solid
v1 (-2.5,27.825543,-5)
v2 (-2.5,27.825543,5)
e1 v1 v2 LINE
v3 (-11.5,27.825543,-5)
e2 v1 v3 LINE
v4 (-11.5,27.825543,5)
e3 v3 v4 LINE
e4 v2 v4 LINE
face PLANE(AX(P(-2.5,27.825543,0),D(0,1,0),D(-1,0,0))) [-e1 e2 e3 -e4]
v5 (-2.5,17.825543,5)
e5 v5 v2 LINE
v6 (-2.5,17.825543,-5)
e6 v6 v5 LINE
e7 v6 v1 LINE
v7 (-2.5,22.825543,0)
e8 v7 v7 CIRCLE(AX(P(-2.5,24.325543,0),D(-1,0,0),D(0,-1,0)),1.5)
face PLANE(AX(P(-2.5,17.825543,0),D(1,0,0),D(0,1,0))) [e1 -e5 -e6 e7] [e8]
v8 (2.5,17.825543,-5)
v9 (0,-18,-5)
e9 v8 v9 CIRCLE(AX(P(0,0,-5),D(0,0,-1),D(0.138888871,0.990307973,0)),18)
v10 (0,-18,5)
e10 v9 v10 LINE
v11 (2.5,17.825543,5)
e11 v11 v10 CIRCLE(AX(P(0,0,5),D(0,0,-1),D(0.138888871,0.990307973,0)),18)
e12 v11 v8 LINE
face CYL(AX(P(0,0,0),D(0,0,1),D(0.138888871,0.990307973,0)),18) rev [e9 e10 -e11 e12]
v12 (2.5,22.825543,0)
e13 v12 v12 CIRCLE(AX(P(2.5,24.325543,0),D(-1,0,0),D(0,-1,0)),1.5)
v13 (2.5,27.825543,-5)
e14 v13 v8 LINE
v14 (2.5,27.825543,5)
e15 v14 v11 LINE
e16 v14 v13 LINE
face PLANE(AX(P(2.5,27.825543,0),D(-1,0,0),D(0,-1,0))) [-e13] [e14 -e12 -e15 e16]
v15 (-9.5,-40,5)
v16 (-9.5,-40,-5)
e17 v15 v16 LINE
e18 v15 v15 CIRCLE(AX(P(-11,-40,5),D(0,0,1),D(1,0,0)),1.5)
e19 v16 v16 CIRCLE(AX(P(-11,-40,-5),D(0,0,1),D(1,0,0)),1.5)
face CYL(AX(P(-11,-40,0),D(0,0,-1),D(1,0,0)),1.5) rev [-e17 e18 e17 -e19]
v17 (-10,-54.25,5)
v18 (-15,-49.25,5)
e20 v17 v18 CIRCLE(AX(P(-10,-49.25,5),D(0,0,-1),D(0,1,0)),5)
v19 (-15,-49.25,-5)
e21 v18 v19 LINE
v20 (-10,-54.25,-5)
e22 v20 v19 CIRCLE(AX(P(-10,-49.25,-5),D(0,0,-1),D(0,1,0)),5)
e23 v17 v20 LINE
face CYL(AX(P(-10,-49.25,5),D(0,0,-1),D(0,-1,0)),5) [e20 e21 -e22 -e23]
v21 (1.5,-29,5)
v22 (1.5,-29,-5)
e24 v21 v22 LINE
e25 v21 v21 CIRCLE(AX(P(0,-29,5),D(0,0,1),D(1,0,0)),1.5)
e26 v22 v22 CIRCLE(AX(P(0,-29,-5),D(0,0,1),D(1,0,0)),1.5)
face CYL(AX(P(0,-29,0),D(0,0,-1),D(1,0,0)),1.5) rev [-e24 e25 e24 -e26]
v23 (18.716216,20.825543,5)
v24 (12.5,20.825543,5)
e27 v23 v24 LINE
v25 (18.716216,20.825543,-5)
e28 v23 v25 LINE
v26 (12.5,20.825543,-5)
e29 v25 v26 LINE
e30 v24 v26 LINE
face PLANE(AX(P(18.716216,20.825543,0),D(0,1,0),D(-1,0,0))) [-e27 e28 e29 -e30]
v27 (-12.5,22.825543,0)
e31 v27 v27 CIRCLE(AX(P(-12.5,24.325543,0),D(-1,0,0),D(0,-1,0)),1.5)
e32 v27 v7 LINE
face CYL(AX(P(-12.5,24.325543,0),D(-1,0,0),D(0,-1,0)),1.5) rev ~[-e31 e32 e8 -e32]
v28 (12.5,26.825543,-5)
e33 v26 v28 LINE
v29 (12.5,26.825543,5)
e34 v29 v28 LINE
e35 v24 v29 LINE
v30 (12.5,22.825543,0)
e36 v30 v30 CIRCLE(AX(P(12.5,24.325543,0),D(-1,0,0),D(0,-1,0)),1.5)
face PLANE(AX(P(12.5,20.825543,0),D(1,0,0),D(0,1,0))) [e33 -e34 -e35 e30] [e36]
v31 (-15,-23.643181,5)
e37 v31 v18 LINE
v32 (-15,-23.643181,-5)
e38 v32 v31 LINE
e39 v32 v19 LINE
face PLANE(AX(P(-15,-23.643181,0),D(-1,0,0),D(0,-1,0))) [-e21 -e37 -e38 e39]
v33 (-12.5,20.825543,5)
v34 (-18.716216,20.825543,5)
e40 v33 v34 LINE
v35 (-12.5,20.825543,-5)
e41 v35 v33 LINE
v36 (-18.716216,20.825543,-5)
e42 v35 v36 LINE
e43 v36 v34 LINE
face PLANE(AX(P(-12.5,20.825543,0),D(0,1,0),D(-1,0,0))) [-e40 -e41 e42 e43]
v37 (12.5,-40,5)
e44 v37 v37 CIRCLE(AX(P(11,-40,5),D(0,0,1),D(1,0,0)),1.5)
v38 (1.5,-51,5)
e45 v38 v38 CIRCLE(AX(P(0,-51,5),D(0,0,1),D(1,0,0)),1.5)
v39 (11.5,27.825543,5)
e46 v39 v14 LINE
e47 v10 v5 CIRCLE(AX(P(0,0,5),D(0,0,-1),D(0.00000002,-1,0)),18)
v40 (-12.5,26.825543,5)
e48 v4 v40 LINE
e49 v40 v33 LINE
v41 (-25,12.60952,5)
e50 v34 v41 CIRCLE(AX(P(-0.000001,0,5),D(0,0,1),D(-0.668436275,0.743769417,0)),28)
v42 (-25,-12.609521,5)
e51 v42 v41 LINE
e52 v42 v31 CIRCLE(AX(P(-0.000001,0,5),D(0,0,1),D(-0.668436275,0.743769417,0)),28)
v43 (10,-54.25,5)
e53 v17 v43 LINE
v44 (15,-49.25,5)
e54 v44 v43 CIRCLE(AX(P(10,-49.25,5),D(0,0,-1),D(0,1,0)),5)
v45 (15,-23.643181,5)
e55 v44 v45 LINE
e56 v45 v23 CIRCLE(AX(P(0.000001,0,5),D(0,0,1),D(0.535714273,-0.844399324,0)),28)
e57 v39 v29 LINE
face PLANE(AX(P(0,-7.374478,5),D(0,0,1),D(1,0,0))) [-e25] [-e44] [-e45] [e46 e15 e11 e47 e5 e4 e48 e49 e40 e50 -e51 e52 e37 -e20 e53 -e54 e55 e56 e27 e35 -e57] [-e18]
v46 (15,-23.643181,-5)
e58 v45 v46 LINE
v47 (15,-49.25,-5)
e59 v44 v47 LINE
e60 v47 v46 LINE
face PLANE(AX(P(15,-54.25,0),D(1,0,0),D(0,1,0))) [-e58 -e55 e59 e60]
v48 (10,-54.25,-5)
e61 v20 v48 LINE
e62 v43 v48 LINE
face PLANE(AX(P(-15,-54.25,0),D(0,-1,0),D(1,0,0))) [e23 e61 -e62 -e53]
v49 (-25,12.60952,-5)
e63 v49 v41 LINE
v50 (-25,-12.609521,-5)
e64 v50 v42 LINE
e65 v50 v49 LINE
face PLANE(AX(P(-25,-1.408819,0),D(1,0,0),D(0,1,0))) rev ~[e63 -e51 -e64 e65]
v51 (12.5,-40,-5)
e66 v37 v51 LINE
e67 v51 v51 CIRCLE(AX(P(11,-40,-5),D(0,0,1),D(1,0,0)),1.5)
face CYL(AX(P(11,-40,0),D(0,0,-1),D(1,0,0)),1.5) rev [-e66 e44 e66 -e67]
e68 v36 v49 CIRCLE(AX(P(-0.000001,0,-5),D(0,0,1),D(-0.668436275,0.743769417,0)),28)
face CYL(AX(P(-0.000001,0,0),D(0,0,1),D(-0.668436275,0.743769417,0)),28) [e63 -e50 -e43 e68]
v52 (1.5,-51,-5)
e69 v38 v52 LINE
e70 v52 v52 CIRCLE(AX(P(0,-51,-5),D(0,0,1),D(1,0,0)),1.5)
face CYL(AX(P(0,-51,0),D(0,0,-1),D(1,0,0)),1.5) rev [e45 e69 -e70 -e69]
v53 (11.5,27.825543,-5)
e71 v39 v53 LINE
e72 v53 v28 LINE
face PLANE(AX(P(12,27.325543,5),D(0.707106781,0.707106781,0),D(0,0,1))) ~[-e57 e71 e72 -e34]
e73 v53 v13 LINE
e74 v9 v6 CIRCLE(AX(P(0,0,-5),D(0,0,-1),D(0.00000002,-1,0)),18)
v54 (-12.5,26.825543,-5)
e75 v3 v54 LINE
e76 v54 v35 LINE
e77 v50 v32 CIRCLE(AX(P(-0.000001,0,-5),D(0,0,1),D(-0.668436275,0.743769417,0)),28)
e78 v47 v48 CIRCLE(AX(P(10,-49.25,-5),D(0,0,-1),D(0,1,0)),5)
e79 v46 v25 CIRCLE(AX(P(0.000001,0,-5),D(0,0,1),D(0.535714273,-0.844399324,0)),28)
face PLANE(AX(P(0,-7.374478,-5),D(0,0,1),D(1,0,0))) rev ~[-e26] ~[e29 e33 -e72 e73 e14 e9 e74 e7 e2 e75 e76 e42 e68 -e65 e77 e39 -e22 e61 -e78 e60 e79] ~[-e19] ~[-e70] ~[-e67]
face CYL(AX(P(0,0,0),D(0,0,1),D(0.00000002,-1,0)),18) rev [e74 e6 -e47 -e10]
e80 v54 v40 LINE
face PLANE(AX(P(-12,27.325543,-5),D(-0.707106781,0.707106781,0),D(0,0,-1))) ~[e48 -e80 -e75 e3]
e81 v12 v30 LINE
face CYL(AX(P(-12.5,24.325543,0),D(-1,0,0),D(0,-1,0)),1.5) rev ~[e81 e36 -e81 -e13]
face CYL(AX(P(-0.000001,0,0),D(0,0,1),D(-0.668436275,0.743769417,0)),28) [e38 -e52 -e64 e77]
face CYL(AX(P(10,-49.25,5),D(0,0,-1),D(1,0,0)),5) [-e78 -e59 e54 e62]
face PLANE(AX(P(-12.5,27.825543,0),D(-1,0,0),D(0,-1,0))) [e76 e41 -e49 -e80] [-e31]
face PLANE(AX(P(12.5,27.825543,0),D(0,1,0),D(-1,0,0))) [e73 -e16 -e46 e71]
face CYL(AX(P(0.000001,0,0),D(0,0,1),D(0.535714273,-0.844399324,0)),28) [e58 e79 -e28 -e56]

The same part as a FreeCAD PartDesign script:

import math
import FreeCAD as App
import Part
import Sketcher

V = App.Vector


def edges_at(feature, points):
    """Names of the edges that pass closest to the given points."""
    edges = feature.Shape.Edges
    near = lambda p: min(range(len(edges)), key=lambda i: edges[i].distToShape(Part.Vertex(*p))[0])
    return sorted({f"Edge{near(p) + 1}" for p in points})


def add_polygon(sketch, points):
    """Adds a closed chain of lines whose ends are joined by coincident constraints."""
    first, n = sketch.GeometryCount, len(points)
    for a, b in zip(points, points[1:] + points[:1]):
        sketch.addGeometry(Part.LineSegment(App.Vector(*a, 0), App.Vector(*b, 0)), False)
    for i in range(n):
        sketch.addConstraint(Sketcher.Constraint("Coincident", first + i, 2, first + (i + 1) % n, 1))

doc = App.newDocument("Part")
body = doc.addObject("PartDesign::Body", "Body")

sketch1 = body.newObject("Sketcher::SketchObject", "Sketch")
sketch1.AttachmentSupport = (doc.getObject("XY_Plane"), [""])
sketch1.MapMode = "FlatFace"
sketch1.addGeometry([
    Part.ArcOfCircle(Part.Circle(V(0, 0, 0), V(0, 0, 1), 18), math.radians(-90), math.radians(82)),
    Part.ArcOfCircle(Part.Circle(V(0, 0, 0), V(0, 0, 1), 18), math.radians(98), math.radians(270)),
    Part.LineSegment(V(-2.5, 17.8, 0), V(-2.5, 27.8, 0)),
    Part.LineSegment(V(-2.5, 27.8, 0), V(-12.5, 27.8, 0)),
    Part.LineSegment(V(-12.5, 27.8, 0), V(-12.5, 20.8, 0)),
    Part.LineSegment(V(-12.5, 20.8, 0), V(-18.7, 20.8, 0)),
    Part.ArcOfCircle(Part.Circle(V(0, 0, 0), V(0, 0, 1), 28), math.radians(132), math.radians(238)),
    Part.LineSegment(V(-15, -23.6, 0), V(-15, -54.2, 0)),
    Part.LineSegment(V(-15, -54.2, 0), V(15, -54.2, 0)),
    Part.LineSegment(V(15, -54.2, 0), V(15, -23.6, 0)),
    Part.ArcOfCircle(Part.Circle(V(0, 0, 0), V(0, 0, 1), 28), math.radians(-58), math.radians(48)),
    Part.LineSegment(V(18.7, 20.8, 0), V(12.5, 20.8, 0)),
    Part.LineSegment(V(12.5, 20.8, 0), V(12.5, 27.8, 0)),
    Part.LineSegment(V(12.5, 27.8, 0), V(2.5, 27.8, 0)),
    Part.LineSegment(V(2.5, 27.8, 0), V(2.5, 17.8, 0)),
    Part.Circle(V(0, -51, 0), V(0, 0, 1), 1.5),
    Part.Circle(V(-11, -40, 0), V(0, 0, 1), 1.5),
    Part.Circle(V(11, -40, 0), V(0, 0, 1), 1.5),
    Part.Circle(V(0, -29, 0), V(0, 0, 1), 1.5),
], False)
sketch1.addConstraint([
    Sketcher.Constraint("Tangent", 0, 1, 1, 2),
    Sketcher.Constraint("Coincident", 1, 1, 2, 1),
    Sketcher.Constraint("Coincident", 2, 2, 3, 1),
    Sketcher.Constraint("Coincident", 3, 2, 4, 1),
    Sketcher.Constraint("Coincident", 4, 2, 5, 1),
    Sketcher.Constraint("Coincident", 5, 2, 6, 1),
    Sketcher.Constraint("Coincident", 6, 2, 7, 1),
    Sketcher.Constraint("Coincident", 7, 2, 8, 1),
    Sketcher.Constraint("Coincident", 8, 2, 9, 1),
    Sketcher.Constraint("Coincident", 9, 2, 10, 1),
    Sketcher.Constraint("Coincident", 10, 2, 11, 1),
    Sketcher.Constraint("Coincident", 11, 2, 12, 1),
    Sketcher.Constraint("Coincident", 12, 2, 13, 1),
    Sketcher.Constraint("Coincident", 13, 2, 14, 1),
    Sketcher.Constraint("Coincident", 14, 2, 0, 2),
    Sketcher.Constraint("Vertical", 2),
    Sketcher.Constraint("Horizontal", 3),
    Sketcher.Constraint("Vertical", 4),
    Sketcher.Constraint("Horizontal", 5),
    Sketcher.Constraint("Vertical", 7),
    Sketcher.Constraint("Horizontal", 8),
    Sketcher.Constraint("Vertical", 9),
    Sketcher.Constraint("Horizontal", 11),
    Sketcher.Constraint("Vertical", 12),
    Sketcher.Constraint("Horizontal", 13),
    Sketcher.Constraint("Vertical", 14),
    Sketcher.Constraint("Coincident", 0, 3, -1, 1),
    Sketcher.Constraint("Coincident", 6, 3, -1, 1),
    Sketcher.Constraint("Coincident", 10, 3, -1, 1),
    Sketcher.Constraint("Equal", 0, 1),
    Sketcher.Constraint("Equal", 6, 10),
    Sketcher.Constraint("Equal", 15, 16),
    Sketcher.Constraint("Equal", 16, 17),
    Sketcher.Constraint("Equal", 17, 18),
    Sketcher.Constraint("Symmetric", 16, 3, 17, 3, -2),
    Sketcher.Constraint("Symmetric", 4, 2, 11, 2, -2),
    Sketcher.Constraint("Symmetric", 2, 2, 13, 2, -2),
    Sketcher.Constraint("PointOnObject", 15, 3, -2),
    Sketcher.Constraint("PointOnObject", 18, 3, -2),
    Sketcher.Constraint("PointOnObject", 0, 1, -2),
    Sketcher.Constraint("Horizontal", 6, 2, 9, 2),
    Sketcher.Constraint("Equal", 13, 2),
    Sketcher.Constraint("Diameter", 15, 3.0),
    Sketcher.Constraint("Radius", 0, 18.0),
    Sketcher.Constraint("Radius", 6, 28.0),
    Sketcher.Constraint("DistanceX", 3, 2, 3, 1, 10.0),
    Sketcher.Constraint("DistanceX", 8, 1, 8, 2, 30.0),
    Sketcher.Constraint("DistanceY", 4, 2, 4, 1, 7.0),
    Sketcher.Constraint("DistanceY", 15, 3, -1, 1, 51.0),
    Sketcher.Constraint("DistanceX", 16, 3, -1, 1, 11.0),
    Sketcher.Constraint("DistanceY", 16, 3, -1, 1, 40.0),
    Sketcher.Constraint("DistanceY", 18, 3, -1, 1, 29.0),
    Sketcher.Constraint("DistanceX", 1, 1, 11, 2, 15.0),
    Sketcher.Constraint("DistanceY", 7, 2, -1, 1, 54.25),
])
pad1 = body.newObject("PartDesign::Pad", "Pad")
pad1.Profile = sketch1
pad1.Length = 10
pad1.Midplane = True

sketch2 = body.newObject("Sketcher::SketchObject", "Sketch001")
sketch2.AttachmentSupport = (doc.getObject("YZ_Plane"), [""])
sketch2.MapMode = "FlatFace"
sketch2.AttachmentOffset = App.Placement(V(0, 0, -12.5), App.Rotation())
sketch2.addGeometry(Part.Circle(V(24.3, 0, 0), V(0, 0, 1), 1.5), False)
sketch2.addConstraint([
    Sketcher.Constraint("PointOnObject", 0, 3, -1),
    Sketcher.Constraint("Diameter", 0, 3.0),
    Sketcher.Constraint("DistanceX", -1, 1, 0, 3, 24.325543),
])
pocket1 = body.newObject("PartDesign::Pocket", "Pocket")
pocket1.Profile = sketch2
pocket1.Type = "ThroughAll"
pocket1.Reversed = True
doc.recompute()

chamfer = body.newObject("PartDesign::Chamfer", "Chamfer")
chamfer.Base = (pocket1, edges_at(pocket1, [(12.5, 27.826, 0), (-12.5, 27.826, 0)]))
chamfer.Size = 1
doc.recompute()

fillet = body.newObject("PartDesign::Fillet", "Fillet")
fillet.Base = (chamfer, edges_at(chamfer, [(-15, -54.25, 0), (15, -54.25, 0)]))
fillet.Radius = 5

sketch3 = body.newObject("Sketcher::SketchObject", "Sketch002")
sketch3.AttachmentSupport = (doc.getObject("YZ_Plane"), [""])
sketch3.MapMode = "FlatFace"
sketch3.AttachmentOffset = App.Placement(V(0, 0, -28), App.Rotation())
add_polygon(sketch3, [(-24, 5), (-24, -5), (21, -5), (21, 5)])
sketch3.addConstraint([
    Sketcher.Constraint("Vertical", 0),
    Sketcher.Constraint("Horizontal", 1),
    Sketcher.Constraint("Vertical", 2),
    Sketcher.Constraint("Horizontal", 3),
    Sketcher.Constraint("DistanceY", 0, 2, 0, 1, 10.0),
    Sketcher.Constraint("DistanceY", 0, 2, -1, 1, 5.0),
    Sketcher.Constraint("DistanceX", 1, 1, 1, 2, 44.468724),
    Sketcher.Constraint("DistanceX", 0, 2, -1, 1, 23.643181),
])
pocket2 = body.newObject("PartDesign::Pocket", "Pocket001")
pocket2.Profile = sketch3
pocket2.Length = 3
pocket2.Reversed = True

doc.recompute()
